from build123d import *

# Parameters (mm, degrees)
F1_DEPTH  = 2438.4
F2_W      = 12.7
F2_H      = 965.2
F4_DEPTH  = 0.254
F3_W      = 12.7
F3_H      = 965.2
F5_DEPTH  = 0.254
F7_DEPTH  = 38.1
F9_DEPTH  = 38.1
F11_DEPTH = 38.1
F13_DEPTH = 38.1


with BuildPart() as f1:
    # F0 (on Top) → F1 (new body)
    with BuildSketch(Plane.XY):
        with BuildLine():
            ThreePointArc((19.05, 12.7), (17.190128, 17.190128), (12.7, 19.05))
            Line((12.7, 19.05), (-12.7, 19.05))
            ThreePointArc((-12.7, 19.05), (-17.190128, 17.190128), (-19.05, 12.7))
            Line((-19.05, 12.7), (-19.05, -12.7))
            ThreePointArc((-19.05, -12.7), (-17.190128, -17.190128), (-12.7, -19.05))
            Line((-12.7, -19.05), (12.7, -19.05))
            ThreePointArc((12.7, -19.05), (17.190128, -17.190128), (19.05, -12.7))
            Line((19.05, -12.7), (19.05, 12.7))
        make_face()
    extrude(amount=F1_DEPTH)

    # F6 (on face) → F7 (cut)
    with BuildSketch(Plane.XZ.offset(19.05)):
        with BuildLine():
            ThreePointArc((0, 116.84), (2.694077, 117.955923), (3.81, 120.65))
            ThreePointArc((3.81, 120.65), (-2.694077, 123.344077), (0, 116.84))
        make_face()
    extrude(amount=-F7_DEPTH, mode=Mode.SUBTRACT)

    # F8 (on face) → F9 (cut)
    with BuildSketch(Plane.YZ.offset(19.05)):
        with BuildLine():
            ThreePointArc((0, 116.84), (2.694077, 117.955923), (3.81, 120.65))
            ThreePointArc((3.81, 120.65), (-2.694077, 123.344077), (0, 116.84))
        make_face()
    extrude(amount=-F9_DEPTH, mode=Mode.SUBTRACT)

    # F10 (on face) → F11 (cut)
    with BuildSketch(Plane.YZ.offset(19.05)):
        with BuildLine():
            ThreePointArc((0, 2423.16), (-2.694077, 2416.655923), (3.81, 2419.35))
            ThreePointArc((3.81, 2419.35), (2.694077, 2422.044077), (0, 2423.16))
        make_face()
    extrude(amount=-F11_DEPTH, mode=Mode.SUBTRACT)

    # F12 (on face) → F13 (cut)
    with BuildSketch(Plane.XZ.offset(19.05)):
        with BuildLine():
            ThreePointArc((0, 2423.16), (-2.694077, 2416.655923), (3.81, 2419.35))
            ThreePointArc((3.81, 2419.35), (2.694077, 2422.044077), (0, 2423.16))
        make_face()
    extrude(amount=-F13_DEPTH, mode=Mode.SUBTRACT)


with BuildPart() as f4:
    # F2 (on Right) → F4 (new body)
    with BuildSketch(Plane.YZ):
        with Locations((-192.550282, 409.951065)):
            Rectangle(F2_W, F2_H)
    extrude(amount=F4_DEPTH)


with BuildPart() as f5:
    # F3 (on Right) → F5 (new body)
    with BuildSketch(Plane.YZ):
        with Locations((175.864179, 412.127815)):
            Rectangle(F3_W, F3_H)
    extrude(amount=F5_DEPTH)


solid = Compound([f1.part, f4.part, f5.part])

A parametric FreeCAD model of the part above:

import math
import FreeCAD as App
import Part
import Sketcher
Q = App.Units.Quantity


def add_polygon(sketch, points):
    """Adds a closed chain of lines whose ends are joined by coincident constraints."""
    first, n = sketch.GeometryCount, len(points)
    for a, b in zip(points, points[1:] + points[:1]):
        sketch.addGeometry(Part.LineSegment(App.Vector(*a, 0), App.Vector(*b, 0)), False)
    for i in range(n):
        sketch.addConstraint(Sketcher.Constraint("Coincident", first + i, 2, first + (i + 1) % n, 1))

doc = App.newDocument("Part")
body = doc.addObject("PartDesign::Body", "Body")

# Sketch on XY plane
sketch1 = body.newObject("Sketcher::SketchObject", "Sketch")
sketch1.AttachmentSupport = (doc.getObject("XY_Plane"), [""])
sketch1.MapMode = "FlatFace"
sketch1.addGeometry([
    Part.ArcOfCircle(Part.Circle(App.Vector(13, 13, 0), App.Vector(0, 0, 1), 6), math.radians(0), math.radians(90)),  # 0
    Part.LineSegment(App.Vector(13, 19, 0), App.Vector(-13, 19, 0)),  # 1
    Part.ArcOfCircle(Part.Circle(App.Vector(-13, 13, 0), App.Vector(0, 0, 1), 6), math.radians(90), math.radians(180)),  # 2
    Part.LineSegment(App.Vector(-19, 13, 0), App.Vector(-19, -13, 0)),  # 3
    Part.ArcOfCircle(Part.Circle(App.Vector(-13, -13, 0), App.Vector(0, 0, 1), 6), math.radians(-180), math.radians(-90)),  # 4
    Part.LineSegment(App.Vector(-13, -19, 0), App.Vector(13, -19, 0)),  # 5
    Part.ArcOfCircle(Part.Circle(App.Vector(13, -13, 0), App.Vector(0, 0, 1), 6), math.radians(-90), math.radians(0)),  # 6
    Part.LineSegment(App.Vector(19, -13, 0), App.Vector(19, 13, 0)),  # 7
], False)
sketch1.addConstraint([
    Sketcher.Constraint("Tangent", 0, 2, 1, 1),
    Sketcher.Constraint("Tangent", 1, 2, 2, 1),
    Sketcher.Constraint("Tangent", 2, 2, 3, 1),
    Sketcher.Constraint("Tangent", 3, 2, 4, 1),
    Sketcher.Constraint("Tangent", 4, 2, 5, 1),
    Sketcher.Constraint("Tangent", 5, 2, 6, 1),
    Sketcher.Constraint("Tangent", 6, 2, 7, 1),
    Sketcher.Constraint("Tangent", 7, 2, 0, 1),
    Sketcher.Constraint("Horizontal", 1),
    Sketcher.Constraint("Vertical", 3),
    Sketcher.Constraint("Horizontal", 5),
    Sketcher.Constraint("Vertical", 7),
    Sketcher.Constraint("Equal", 0, 2),
    Sketcher.Constraint("Equal", 2, 4),
    Sketcher.Constraint("Equal", 4, 6),
    Sketcher.Constraint("Symmetric", 0, 3, 4, 3, -1, 1),
    Sketcher.Constraint("Equal", 5, 3),
    Sketcher.Constraint("DistanceX", 1, 2, 1, 1, Q("1 in")),
    Sketcher.Constraint("Radius", 0, Q("0.25 in")),
])
pad1 = body.newObject("PartDesign::Pad", "Pad")
pad1.Profile = sketch1
pad1.Length = Q("96 in")

# Sketch on XZ plane
sketch2 = body.newObject("Sketcher::SketchObject", "Sketch001")
sketch2.AttachmentSupport = (doc.getObject("XZ_Plane"), [""])
sketch2.MapMode = "FlatFace"
sketch2.AttachmentOffset = App.Placement(App.Vector(0, 0, 0.75 * 25.4), App.Rotation())
sketch2.addGeometry([
    Part.ArcOfCircle(Part.Circle(App.Vector(0, 120.6, 0), App.Vector(0, 0, 1), 3.8), math.radians(-90), math.radians(0)),
    Part.ArcOfCircle(Part.Circle(App.Vector(0, 120.7, 0), App.Vector(0, 0, 1), 3.8), math.radians(0), math.radians(270)),
], False)
sketch2.addConstraint([
    Sketcher.Constraint("Tangent", 0, 1, 1, 2),
    Sketcher.Constraint("Coincident", 1, 1, 0, 2),
    Sketcher.Constraint("PointOnObject", 0, 3, -2),
    Sketcher.Constraint("PointOnObject", 0, 1, -2),
    Sketcher.Constraint("Horizontal", 0, 3, 1, 1),
    Sketcher.Constraint("Radius", 0, Q("0.15 in")),
    Sketcher.Constraint("DistanceY", -1, 1, 0, 1, Q("4.6 in")),
])
pocket1 = body.newObject("PartDesign::Pocket", "Pocket")
pocket1.Profile = sketch2
pocket1.Length = Q("1.5 in")

# Sketch on YZ plane
sketch3 = body.newObject("Sketcher::SketchObject", "Sketch002")
sketch3.AttachmentSupport = (doc.getObject("YZ_Plane"), [""])
sketch3.MapMode = "FlatFace"
sketch3.AttachmentOffset = App.Placement(App.Vector(0, 0, 0.75 * 25.4), App.Rotation())
sketch3.addGeometry([
    Part.ArcOfCircle(Part.Circle(App.Vector(0, 120.6, 0), App.Vector(0, 0, 1), 3.8), math.radians(-90), math.radians(0)),
    Part.ArcOfCircle(Part.Circle(App.Vector(0, 120.7, 0), App.Vector(0, 0, 1), 3.8), math.radians(0), math.radians(270)),
], False)
sketch3.addConstraint([
    Sketcher.Constraint("Tangent", 0, 1, 1, 2),
    Sketcher.Constraint("Coincident", 1, 1, 0, 2),
    Sketcher.Constraint("PointOnObject", 0, 3, -2),
    Sketcher.Constraint("PointOnObject", 0, 1, -2),
    Sketcher.Constraint("Horizontal", 0, 3, 1, 1),
    Sketcher.Constraint("Radius", 0, Q("0.15 in")),
    Sketcher.Constraint("DistanceY", -1, 1, 0, 1, Q("4.6 in")),
])
pocket2 = body.newObject("PartDesign::Pocket", "Pocket001")
pocket2.Profile = sketch3
pocket2.Length = Q("1.5 in")

# Sketch on YZ plane
sketch4 = body.newObject("Sketcher::SketchObject", "Sketch003")
sketch4.AttachmentSupport = (doc.getObject("YZ_Plane"), [""])
sketch4.MapMode = "FlatFace"
sketch4.AttachmentOffset = App.Placement(App.Vector(0, 0, 0.75 * 25.4), App.Rotation())
sketch4.addGeometry([
    Part.ArcOfCircle(Part.Circle(App.Vector(0, 2419.3, 0), App.Vector(0, 0, 1), 3.8), math.radians(90), math.radians(360)),
    Part.ArcOfCircle(Part.Circle(App.Vector(0, 2419.4, 0), App.Vector(0, 0, 1), 3.8), math.radians(0), math.radians(90)),
], False)
sketch4.addConstraint([
    Sketcher.Constraint("Tangent", 0, 1, 1, 2),
    Sketcher.Constraint("Coincident", 1, 1, 0, 2),
    Sketcher.Constraint("PointOnObject", 0, 3, -2),
    Sketcher.Constraint("PointOnObject", 0, 1, -2),
    Sketcher.Constraint("Horizontal", 0, 3, 1, 1),
    Sketcher.Constraint("Radius", 0, Q("0.15 in")),
    Sketcher.Constraint("DistanceY", -1, 1, 0, 1, Q("95.4 in")),
])
pocket3 = body.newObject("PartDesign::Pocket", "Pocket002")
pocket3.Profile = sketch4
pocket3.Length = Q("1.5 in")

# Sketch on XZ plane
sketch5 = body.newObject("Sketcher::SketchObject", "Sketch004")
sketch5.AttachmentSupport = (doc.getObject("XZ_Plane"), [""])
sketch5.MapMode = "FlatFace"
sketch5.AttachmentOffset = App.Placement(App.Vector(0, 0, 0.75 * 25.4), App.Rotation())
sketch5.addGeometry([
    Part.ArcOfCircle(Part.Circle(App.Vector(0, 2419.3, 0), App.Vector(0, 0, 1), 3.8), math.radians(90), math.radians(360)),
    Part.ArcOfCircle(Part.Circle(App.Vector(0, 2419.4, 0), App.Vector(0, 0, 1), 3.8), math.radians(0), math.radians(90)),
], False)
sketch5.addConstraint([
    Sketcher.Constraint("Tangent", 0, 1, 1, 2),
    Sketcher.Constraint("Coincident", 1, 1, 0, 2),
    Sketcher.Constraint("PointOnObject", 0, 3, -2),
    Sketcher.Constraint("PointOnObject", 0, 1, -2),
    Sketcher.Constraint("Horizontal", 0, 3, 1, 1),
    Sketcher.Constraint("Radius", 0, Q("0.15 in")),
    Sketcher.Constraint("DistanceY", -1, 1, 0, 1, Q("95.4 in")),
])
pocket4 = body.newObject("PartDesign::Pocket", "Pocket003")
pocket4.Profile = sketch5
pocket4.Length = Q("1.5 in")
body2 = doc.addObject("PartDesign::Body", "Body001")

# Sketch on YZ plane
sketch6 = body2.newObject("Sketcher::SketchObject", "Sketch005")
sketch6.AttachmentSupport = (doc.getObject("YZ_Plane001"), [""])
sketch6.MapMode = "FlatFace"
add_polygon(sketch6, [(-199, 893), (-199, -73), (-186, -73), (-186, 893)])  # lines 0-3
sketch6.addConstraint([
    Sketcher.Constraint("Vertical", 0),
    Sketcher.Constraint("Horizontal", 1),
    Sketcher.Constraint("Vertical", 2),
    Sketcher.Constraint("Horizontal", 3),
    Sketcher.Constraint("DistanceY", 0, 2, 0, 1, Q("38 in")),
    Sketcher.Constraint("DistanceX", 1, 1, 1, 2, Q("0.5 in")),
    Sketcher.Constraint("DistanceX", 0, 2, -1, 1, 198.900282),
    Sketcher.Constraint("DistanceY", 0, 2, -1, 1, 72.648935),
])
pad2 = body2.newObject("PartDesign::Pad", "Pad001")
pad2.Profile = sketch6
pad2.Length = Q("0.01 in")
body3 = doc.addObject("PartDesign::Body", "Body002")

# Sketch on YZ plane
sketch7 = body3.newObject("Sketcher::SketchObject", "Sketch006")
sketch7.AttachmentSupport = (doc.getObject("YZ_Plane002"), [""])
sketch7.MapMode = "FlatFace"
add_polygon(sketch7, [(170, 895), (170, -70), (182, -70), (182, 895)])  # lines 0-3
sketch7.addConstraint([
    Sketcher.Constraint("Vertical", 0),
    Sketcher.Constraint("Horizontal", 1),
    Sketcher.Constraint("Vertical", 2),
    Sketcher.Constraint("Horizontal", 3),
    Sketcher.Constraint("DistanceY", 0, 2, 0, 1, Q("38 in")),
    Sketcher.Constraint("DistanceX", 1, 1, 1, 2, Q("0.5 in")),
    Sketcher.Constraint("DistanceX", -1, 1, 0, 2, 169.514179),
    Sketcher.Constraint("DistanceY", 0, 2, -1, 1, 70.472185),
])
pad3 = body3.newObject("PartDesign::Pad", "Pad002")
pad3.Profile = sketch7
pad3.Length = Q("0.01 in")

doc.recompute()
